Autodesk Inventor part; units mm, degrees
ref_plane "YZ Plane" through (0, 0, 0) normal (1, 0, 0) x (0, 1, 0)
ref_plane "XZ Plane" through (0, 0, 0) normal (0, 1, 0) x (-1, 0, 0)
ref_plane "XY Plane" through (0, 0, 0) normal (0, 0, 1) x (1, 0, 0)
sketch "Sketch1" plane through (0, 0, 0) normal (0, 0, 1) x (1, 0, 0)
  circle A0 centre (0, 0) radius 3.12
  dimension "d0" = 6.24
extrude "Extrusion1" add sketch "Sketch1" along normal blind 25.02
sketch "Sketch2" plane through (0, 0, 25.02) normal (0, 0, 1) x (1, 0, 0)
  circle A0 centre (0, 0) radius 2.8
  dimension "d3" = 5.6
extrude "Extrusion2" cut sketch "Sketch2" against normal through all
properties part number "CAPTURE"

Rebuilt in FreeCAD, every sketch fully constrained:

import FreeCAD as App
import Part
import Sketcher

V = App.Vector

doc = App.newDocument("Part")
body = doc.addObject("PartDesign::Body", "Body")

sketch1 = doc.addObject("Sketcher::SketchObject", "Sketch")
body.addObject(sketch1)
sketch1.AttachmentSupport = (doc.XY_Plane, [""])
sketch1.MapMode = "FlatFace"
sketch1.addGeometry(Part.Circle(V(0, 0, 0), V(0, 0, 1), 3.1), False)
sketch1.addConstraint([
    Sketcher.Constraint("Coincident", 0, 3, -1, 1),
    Sketcher.Constraint("Diameter", 0, 6.24),
])
pad1 = doc.addObject("PartDesign::Pad", "Pad")
body.addObject(pad1)
pad1.Profile = sketch1
pad1.Length = 25.02

sketch2 = doc.addObject("Sketcher::SketchObject", "Sketch001")
body.addObject(sketch2)
sketch2.AttachmentSupport = (doc.XY_Plane, [""])
sketch2.MapMode = "FlatFace"
sketch2.AttachmentOffset = App.Placement(V(0, 0, 25.02), App.Rotation())
sketch2.addGeometry(Part.Circle(V(0, 0, 0), V(0, 0, 1), 2.8), False)
sketch2.addConstraint([
    Sketcher.Constraint("Coincident", 0, 3, -1, 1),
    Sketcher.Constraint("Diameter", 0, 5.6),
])
pocket1 = doc.addObject("PartDesign::Pocket", "Pocket")
body.addObject(pocket1)
pocket1.Profile = sketch2
pocket1.Type = "ThroughAll"

doc.recompute()
